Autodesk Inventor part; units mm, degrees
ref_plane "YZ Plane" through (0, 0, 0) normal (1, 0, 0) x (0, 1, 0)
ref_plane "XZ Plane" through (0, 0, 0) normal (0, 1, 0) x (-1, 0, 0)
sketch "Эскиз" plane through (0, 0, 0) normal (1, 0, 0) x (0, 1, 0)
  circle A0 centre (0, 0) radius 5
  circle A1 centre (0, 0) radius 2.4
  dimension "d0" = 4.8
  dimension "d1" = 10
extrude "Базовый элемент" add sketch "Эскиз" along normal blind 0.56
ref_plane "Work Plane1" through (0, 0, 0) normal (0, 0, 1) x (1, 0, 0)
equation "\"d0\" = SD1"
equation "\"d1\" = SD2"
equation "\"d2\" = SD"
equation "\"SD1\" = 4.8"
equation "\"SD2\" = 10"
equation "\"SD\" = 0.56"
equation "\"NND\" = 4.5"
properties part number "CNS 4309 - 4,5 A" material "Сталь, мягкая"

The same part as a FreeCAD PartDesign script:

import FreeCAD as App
import Part
import Sketcher
from FreeCAD import Vector

doc = App.newDocument("Part")
params = doc.addObject("Spreadsheet::Sheet", "Params")
for row, (alias, value) in enumerate([
    ("sketch1_diameter", "10 mm"),
    ("sketch1_diameter2", "4.8 mm"),
    ("pad1_length", "0.56 mm"),
], start=1):
    params.set(f"A{row}", alias)
    params.set(f"B{row}", "=" + value)
    params.setAlias(f"B{row}", alias)

body = doc.addObject("PartDesign::Body", "Body")

sketch1 = body.newObject("Sketcher::SketchObject", "Sketch")
sketch1.AttachmentSupport = (doc.getObject("YZ_Plane"), [""])
sketch1.MapMode = "FlatFace"
sketch1.addGeometry(Part.Circle(Vector(0, 0, 0), Vector(0, 0, 1), 5), False)
sketch1.addGeometry(Part.Circle(Vector(0, 0, 0), Vector(0, 0, 1), 2.4), False)
sketch1.addConstraint(Sketcher.Constraint("Coincident", 0, 3, -1, 1))
sketch1.addConstraint(Sketcher.Constraint("Coincident", 1, 3, -1, 1))
sketch1.addConstraint(Sketcher.Constraint("Diameter", 0, 10.0))
sketch1.addConstraint(Sketcher.Constraint("Diameter", 1, 4.8))
sketch1.setExpression("Constraints[2]", "Params.sketch1_diameter")
sketch1.setExpression("Constraints[3]", "Params.sketch1_diameter2")
pad1 = body.newObject("PartDesign::Pad", "Pad")
pad1.Profile = sketch1
pad1.setExpression("Length", "Params.pad1_length")

doc.recompute()
